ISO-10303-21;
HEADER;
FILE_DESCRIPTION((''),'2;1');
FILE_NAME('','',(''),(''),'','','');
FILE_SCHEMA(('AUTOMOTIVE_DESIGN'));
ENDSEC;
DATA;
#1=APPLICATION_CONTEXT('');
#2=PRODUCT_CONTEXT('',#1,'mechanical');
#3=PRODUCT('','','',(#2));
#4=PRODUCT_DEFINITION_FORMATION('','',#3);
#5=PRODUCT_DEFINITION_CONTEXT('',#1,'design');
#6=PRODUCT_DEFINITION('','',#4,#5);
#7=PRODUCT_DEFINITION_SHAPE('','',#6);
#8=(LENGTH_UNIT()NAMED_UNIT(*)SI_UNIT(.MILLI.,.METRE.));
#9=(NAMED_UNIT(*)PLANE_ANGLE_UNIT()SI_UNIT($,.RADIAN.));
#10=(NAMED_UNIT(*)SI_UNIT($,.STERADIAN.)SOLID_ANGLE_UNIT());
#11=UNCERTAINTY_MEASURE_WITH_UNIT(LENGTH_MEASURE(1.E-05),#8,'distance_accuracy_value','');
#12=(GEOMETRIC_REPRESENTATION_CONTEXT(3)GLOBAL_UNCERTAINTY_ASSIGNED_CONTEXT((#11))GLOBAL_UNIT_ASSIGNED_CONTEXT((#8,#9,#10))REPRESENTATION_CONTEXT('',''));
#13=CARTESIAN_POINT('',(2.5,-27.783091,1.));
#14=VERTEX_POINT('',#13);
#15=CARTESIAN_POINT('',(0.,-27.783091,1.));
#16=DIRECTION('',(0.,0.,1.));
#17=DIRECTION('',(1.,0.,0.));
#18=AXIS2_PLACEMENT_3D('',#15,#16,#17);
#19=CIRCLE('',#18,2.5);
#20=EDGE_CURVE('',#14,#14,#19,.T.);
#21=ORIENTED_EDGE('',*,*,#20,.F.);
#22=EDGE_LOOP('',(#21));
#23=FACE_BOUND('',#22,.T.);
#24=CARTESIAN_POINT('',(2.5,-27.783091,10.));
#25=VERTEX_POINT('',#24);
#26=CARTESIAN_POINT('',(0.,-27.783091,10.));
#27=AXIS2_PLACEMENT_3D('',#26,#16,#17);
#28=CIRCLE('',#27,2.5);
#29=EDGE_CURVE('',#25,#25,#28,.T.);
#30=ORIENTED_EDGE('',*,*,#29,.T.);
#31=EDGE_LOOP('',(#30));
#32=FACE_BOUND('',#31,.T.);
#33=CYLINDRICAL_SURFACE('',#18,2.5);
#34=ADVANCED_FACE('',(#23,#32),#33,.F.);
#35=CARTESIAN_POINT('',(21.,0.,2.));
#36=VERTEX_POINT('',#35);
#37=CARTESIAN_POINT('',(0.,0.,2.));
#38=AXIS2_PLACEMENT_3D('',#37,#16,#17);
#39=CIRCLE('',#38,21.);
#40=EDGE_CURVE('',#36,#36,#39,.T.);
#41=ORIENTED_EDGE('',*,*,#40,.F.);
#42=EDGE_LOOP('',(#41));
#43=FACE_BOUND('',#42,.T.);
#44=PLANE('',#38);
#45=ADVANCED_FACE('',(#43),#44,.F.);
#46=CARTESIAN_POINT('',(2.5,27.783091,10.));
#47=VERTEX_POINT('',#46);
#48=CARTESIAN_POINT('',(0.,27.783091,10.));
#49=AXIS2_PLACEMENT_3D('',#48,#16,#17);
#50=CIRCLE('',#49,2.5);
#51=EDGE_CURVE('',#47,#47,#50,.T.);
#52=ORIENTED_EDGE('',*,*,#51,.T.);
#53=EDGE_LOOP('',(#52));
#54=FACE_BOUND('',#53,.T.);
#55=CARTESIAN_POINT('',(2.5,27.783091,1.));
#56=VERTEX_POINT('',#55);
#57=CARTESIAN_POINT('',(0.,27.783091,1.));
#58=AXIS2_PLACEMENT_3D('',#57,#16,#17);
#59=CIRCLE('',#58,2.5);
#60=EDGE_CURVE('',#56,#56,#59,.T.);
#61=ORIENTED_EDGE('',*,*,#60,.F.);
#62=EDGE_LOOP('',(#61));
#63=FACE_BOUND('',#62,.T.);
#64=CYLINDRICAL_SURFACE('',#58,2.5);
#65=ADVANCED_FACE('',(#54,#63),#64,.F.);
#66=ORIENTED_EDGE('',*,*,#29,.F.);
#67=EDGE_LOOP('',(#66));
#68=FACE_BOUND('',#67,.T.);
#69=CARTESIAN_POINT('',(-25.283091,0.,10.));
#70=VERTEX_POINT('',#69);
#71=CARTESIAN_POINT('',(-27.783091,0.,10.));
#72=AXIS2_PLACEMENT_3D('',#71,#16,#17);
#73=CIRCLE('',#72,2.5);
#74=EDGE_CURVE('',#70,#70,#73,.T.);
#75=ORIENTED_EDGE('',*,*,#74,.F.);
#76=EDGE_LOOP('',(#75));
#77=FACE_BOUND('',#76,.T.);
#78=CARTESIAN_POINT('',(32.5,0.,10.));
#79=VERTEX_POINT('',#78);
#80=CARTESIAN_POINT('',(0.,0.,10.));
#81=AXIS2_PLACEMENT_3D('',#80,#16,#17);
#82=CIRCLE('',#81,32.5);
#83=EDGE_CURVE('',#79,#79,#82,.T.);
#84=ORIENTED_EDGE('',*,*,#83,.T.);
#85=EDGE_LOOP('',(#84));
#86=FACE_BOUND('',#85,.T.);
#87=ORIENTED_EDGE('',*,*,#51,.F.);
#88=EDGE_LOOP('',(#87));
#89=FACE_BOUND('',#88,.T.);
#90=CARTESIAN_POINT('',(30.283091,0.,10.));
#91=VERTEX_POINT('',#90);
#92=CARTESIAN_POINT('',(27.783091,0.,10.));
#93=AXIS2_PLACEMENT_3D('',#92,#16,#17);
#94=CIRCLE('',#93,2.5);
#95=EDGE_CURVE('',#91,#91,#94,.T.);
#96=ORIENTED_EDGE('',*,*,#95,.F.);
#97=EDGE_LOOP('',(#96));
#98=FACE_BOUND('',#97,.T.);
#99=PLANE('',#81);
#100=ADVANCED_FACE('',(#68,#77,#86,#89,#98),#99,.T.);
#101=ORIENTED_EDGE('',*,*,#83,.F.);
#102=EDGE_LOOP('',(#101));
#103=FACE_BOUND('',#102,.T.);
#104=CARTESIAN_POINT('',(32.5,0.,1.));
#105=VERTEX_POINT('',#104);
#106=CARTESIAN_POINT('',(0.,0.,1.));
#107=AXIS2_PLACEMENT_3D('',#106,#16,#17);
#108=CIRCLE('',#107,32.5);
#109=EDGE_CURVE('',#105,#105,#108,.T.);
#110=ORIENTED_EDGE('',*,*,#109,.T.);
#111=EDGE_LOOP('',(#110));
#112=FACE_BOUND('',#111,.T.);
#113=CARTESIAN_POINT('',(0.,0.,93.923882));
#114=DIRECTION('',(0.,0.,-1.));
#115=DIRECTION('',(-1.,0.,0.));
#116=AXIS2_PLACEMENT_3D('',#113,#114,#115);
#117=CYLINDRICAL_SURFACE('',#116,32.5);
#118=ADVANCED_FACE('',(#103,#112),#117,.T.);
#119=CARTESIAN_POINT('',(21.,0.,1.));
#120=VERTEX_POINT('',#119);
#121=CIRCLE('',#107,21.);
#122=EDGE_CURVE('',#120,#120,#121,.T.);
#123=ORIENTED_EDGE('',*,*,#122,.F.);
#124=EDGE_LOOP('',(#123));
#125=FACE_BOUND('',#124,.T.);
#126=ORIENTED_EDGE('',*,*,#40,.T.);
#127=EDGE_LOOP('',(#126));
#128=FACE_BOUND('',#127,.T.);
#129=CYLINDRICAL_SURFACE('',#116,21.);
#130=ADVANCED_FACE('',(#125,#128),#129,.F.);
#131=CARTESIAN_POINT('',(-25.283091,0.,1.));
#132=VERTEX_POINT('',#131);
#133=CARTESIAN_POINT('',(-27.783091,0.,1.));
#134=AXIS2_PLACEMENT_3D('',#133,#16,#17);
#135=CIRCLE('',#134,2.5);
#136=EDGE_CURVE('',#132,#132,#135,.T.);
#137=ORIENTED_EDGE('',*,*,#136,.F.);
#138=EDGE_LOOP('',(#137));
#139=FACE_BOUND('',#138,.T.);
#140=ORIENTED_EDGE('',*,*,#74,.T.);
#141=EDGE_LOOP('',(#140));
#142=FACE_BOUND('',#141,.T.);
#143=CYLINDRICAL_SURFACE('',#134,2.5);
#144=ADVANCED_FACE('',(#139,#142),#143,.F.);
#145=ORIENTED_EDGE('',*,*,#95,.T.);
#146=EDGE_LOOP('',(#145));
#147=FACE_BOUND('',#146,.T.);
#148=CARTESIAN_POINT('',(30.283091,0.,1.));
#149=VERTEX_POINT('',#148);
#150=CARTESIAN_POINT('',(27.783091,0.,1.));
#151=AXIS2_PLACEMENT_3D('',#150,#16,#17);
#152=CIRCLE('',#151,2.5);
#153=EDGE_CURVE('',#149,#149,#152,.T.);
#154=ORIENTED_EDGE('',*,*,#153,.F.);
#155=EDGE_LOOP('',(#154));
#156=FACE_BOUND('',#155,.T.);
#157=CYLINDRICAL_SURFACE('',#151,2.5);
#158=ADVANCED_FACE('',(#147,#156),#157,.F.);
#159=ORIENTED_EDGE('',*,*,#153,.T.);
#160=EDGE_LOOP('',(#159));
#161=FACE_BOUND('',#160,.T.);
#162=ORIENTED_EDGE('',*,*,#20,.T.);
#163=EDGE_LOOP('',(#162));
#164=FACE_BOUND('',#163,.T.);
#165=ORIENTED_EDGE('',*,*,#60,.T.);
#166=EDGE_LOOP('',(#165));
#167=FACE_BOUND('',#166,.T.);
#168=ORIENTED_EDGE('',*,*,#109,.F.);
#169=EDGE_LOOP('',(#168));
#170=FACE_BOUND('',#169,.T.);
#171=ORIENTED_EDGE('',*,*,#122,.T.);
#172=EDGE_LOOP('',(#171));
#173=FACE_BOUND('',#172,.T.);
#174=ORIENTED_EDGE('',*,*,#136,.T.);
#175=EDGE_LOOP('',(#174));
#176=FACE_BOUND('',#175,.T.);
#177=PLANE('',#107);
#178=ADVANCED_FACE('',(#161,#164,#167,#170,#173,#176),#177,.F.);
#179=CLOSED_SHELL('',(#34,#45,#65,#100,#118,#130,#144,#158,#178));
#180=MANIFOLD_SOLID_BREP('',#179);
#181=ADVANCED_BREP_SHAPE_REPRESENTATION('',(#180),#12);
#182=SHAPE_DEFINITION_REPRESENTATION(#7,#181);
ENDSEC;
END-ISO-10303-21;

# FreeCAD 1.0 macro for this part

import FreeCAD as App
import Part
import Sketcher
from FreeCAD import Vector

doc = App.newDocument("Part")
body = doc.addObject("PartDesign::Body", "Body")

# Sketch on XY plane
sketch1 = doc.addObject("Sketcher::SketchObject", "Sketch")
body.addObject(sketch1)
sketch1.AttachmentSupport = (doc.XY_Plane, [""])
sketch1.MapMode = "FlatFace"
sketch1.AttachmentOffset = App.Placement(Vector(0, 0, 1), App.Rotation())
sketch1.addGeometry([
    Part.Circle(Vector(0, 0, 0), Vector(0, 0, 1), 32),
    Part.Circle(Vector(0, 0, 0), Vector(0, 0, 1), 21),
], False)
sketch1.addConstraint([
    Sketcher.Constraint("Coincident", 0, 3, -1, 1),
    Sketcher.Constraint("Coincident", 1, 3, -1, 1),
    Sketcher.Constraint("Diameter", 0, 65.0),
    Sketcher.Constraint("Diameter", 1, 42.0),
])
pad1 = doc.addObject("PartDesign::Pad", "Pad")
body.addObject(pad1)
pad1.Profile = sketch1
pad1.Length = 1

# Sketch on XY plane
sketch2 = doc.addObject("Sketcher::SketchObject", "Sketch001")
body.addObject(sketch2)
sketch2.AttachmentSupport = (doc.XY_Plane, [""])
sketch2.MapMode = "FlatFace"
sketch2.AttachmentOffset = App.Placement(Vector(0, 0, 2), App.Rotation())
sketch2.addGeometry(Part.Circle(Vector(0, 0, 0), Vector(0, 0, 1), 32), False)
sketch2.addConstraint([
    Sketcher.Constraint("Coincident", 0, 3, -1, 1),
    Sketcher.Constraint("Diameter", 0, 65.0),
])
pad2 = doc.addObject("PartDesign::Pad", "Pad001")
body.addObject(pad2)
pad2.Profile = sketch2
pad2.Length = 8

# Sketch on XY plane
sketch3 = doc.addObject("Sketcher::SketchObject", "Sketch002")
body.addObject(sketch3)
sketch3.AttachmentSupport = (doc.XY_Plane, [""])
sketch3.MapMode = "FlatFace"
sketch3.AttachmentOffset = App.Placement(Vector(0, 0, 10), App.Rotation())
sketch3.addGeometry([
    Part.Circle(Vector(0, 27.8, 0), Vector(0, 0, 1), 2.5),
    Part.Circle(Vector(27.8, 0, 0), Vector(0, 0, 1), 2.5),
    Part.Circle(Vector(0, -27.8, 0), Vector(0, 0, 1), 2.5),
    Part.Circle(Vector(-27.8, 0, 0), Vector(0, 0, 1), 2.5),
], False)
sketch3.addConstraint([
    Sketcher.Constraint("Equal", 0, 1),
    Sketcher.Constraint("Equal", 1, 2),
    Sketcher.Constraint("Equal", 2, 3),
    Sketcher.Constraint("Symmetric", 0, 3, 2, 3, -1, 1),
    Sketcher.Constraint("Symmetric", 1, 3, 3, 3, -1, 1),
    Sketcher.Constraint("PointOnObject", 0, 3, -2),
    Sketcher.Constraint("PointOnObject", 1, 3, -1),
    Sketcher.Constraint("Diameter", 0, 5.0),
    Sketcher.Constraint("DistanceY", -1, 1, 0, 3, 27.783091),
    Sketcher.Constraint("DistanceX", -1, 1, 1, 3, 27.783091),
])
pocket1 = doc.addObject("PartDesign::Pocket", "Pocket")
body.addObject(pocket1)
pocket1.Profile = sketch3
pocket1.Type = "ThroughAll"

doc.recompute()
